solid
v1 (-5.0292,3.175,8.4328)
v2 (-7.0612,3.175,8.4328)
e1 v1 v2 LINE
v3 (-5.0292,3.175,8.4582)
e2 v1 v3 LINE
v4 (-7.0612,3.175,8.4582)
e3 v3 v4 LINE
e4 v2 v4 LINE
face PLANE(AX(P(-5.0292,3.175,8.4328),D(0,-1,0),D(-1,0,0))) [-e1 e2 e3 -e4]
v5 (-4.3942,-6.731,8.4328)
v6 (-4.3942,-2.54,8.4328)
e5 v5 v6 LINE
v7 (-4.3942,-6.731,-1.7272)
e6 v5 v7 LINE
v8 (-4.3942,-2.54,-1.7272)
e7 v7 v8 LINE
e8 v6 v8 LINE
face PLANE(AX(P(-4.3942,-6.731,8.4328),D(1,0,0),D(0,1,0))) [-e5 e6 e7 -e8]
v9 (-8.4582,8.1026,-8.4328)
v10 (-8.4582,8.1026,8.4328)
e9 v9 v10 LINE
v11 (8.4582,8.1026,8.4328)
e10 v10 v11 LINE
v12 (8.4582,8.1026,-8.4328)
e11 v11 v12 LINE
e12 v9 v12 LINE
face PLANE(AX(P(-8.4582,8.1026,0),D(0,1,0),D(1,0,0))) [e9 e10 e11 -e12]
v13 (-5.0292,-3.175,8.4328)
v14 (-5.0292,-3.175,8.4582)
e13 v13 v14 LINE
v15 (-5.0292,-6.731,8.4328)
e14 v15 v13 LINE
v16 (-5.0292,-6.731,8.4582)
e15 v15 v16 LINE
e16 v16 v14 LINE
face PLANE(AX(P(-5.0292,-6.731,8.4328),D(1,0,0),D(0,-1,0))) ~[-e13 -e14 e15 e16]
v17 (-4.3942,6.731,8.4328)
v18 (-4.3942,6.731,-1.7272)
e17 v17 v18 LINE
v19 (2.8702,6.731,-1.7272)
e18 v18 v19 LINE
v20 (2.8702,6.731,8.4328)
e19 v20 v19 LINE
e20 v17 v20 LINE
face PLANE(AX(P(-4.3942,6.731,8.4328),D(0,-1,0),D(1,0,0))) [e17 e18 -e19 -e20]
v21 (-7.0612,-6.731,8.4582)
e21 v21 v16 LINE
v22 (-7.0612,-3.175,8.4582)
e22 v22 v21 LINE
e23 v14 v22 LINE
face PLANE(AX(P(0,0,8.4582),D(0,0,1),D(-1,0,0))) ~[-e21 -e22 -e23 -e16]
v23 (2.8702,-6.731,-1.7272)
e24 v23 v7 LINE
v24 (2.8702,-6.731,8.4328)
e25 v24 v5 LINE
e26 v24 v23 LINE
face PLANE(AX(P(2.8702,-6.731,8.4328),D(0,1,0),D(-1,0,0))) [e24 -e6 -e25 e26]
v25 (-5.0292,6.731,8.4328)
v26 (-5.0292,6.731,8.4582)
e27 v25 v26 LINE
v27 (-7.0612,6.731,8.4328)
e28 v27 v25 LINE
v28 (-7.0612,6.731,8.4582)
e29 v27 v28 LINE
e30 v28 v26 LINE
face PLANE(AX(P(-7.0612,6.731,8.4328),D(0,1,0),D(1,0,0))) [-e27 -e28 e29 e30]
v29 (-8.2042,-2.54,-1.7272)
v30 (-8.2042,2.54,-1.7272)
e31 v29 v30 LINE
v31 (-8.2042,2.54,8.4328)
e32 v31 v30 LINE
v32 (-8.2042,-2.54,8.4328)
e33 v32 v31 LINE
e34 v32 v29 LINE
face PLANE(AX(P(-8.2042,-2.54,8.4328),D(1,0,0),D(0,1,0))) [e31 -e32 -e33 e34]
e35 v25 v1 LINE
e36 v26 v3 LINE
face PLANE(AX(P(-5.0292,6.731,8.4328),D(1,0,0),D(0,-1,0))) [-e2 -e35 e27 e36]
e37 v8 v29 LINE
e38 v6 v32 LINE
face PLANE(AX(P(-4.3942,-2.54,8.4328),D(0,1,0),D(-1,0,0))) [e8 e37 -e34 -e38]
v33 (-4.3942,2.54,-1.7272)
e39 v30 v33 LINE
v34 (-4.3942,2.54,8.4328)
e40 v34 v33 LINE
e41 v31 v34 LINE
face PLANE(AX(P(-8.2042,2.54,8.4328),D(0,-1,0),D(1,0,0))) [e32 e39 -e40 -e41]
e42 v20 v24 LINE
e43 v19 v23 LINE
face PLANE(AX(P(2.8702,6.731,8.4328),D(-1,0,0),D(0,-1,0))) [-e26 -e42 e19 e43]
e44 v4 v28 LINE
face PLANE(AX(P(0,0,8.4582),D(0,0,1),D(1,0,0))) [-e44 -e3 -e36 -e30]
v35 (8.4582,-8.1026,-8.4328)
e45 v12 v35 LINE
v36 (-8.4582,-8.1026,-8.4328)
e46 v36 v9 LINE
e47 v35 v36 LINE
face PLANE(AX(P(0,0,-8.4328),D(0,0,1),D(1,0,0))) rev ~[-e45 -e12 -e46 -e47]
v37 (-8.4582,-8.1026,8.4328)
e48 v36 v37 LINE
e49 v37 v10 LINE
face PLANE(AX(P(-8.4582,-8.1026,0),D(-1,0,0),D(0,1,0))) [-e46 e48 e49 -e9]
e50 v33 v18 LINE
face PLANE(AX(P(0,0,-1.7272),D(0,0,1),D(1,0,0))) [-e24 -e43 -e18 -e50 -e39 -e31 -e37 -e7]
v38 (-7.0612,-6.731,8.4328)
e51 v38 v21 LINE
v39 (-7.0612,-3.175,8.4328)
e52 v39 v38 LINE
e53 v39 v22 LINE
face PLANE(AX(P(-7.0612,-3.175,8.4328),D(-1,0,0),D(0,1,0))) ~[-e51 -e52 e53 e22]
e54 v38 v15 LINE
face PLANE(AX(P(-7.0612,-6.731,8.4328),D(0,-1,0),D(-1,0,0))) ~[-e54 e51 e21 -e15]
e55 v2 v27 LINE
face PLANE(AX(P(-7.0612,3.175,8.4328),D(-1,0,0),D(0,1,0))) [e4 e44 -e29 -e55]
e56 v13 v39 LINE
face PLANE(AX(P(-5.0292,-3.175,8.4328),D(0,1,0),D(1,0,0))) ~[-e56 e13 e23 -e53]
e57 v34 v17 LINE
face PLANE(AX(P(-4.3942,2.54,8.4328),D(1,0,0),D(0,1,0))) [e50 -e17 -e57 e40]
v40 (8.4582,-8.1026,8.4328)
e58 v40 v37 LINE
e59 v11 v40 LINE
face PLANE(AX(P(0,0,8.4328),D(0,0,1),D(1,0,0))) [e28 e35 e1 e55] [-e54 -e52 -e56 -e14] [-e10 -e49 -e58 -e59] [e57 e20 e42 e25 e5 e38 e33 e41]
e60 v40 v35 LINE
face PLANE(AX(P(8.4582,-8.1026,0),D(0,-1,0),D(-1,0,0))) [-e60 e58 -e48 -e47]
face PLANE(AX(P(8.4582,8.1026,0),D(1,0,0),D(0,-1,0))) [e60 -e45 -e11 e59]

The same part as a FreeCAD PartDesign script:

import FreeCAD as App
import Part
import Sketcher

V = App.Vector
Q = App.Units.Quantity

doc = App.newDocument("Part")
body = doc.addObject("PartDesign::Body", "Body")

# Sketch on XY plane
sketch1 = body.newObject("Sketcher::SketchObject", "Sketch")
sketch1.AttachmentSupport = (doc.getObject("XY_Plane"), [""])
sketch1.MapMode = "FlatFace"
sketch1.addGeometry([
    Part.LineSegment(V(8, 8, 0), V(-8, 8, 0)),
    Part.LineSegment(V(-8, 8, 0), V(-8, -8, 0)),
    Part.LineSegment(V(-8, -8, 0), V(8, -8, 0)),
    Part.LineSegment(V(8, -8, 0), V(8, 8, 0)),
], False)
sketch1.addConstraint([
    Sketcher.Constraint("Coincident", 0, 2, 1, 1),
    Sketcher.Constraint("Coincident", 1, 2, 2, 1),
    Sketcher.Constraint("Coincident", 2, 2, 3, 1),
    Sketcher.Constraint("Coincident", 3, 2, 0, 1),
    Sketcher.Constraint("Horizontal", 0),
    Sketcher.Constraint("Vertical", 1),
    Sketcher.Constraint("Horizontal", 2),
    Sketcher.Constraint("Vertical", 3),
    Sketcher.Constraint("Symmetric", 0, 2, 2, 2, -1, 1),
    Sketcher.Constraint("DistanceX", 0, 2, 0, 1, Q("0.666 in")),
    Sketcher.Constraint("DistanceY", 1, 2, 1, 1, Q("0.638 in")),
])
pad1 = body.newObject("PartDesign::Pad", "Pad")
pad1.Profile = sketch1
pad1.Length = Q("0.664 in")
pad1.Midplane = True

# Sketch on XY plane
sketch2 = body.newObject("Sketcher::SketchObject", "Sketch001")
sketch2.AttachmentSupport = (doc.getObject("XY_Plane"), [""])
sketch2.MapMode = "FlatFace"
sketch2.AttachmentOffset = App.Placement(V(0, 0, 0.332 * 25.4), App.Rotation())
sketch2.addGeometry([
    Part.LineSegment(V(-8.2, 2.5, 0), V(-8.2, -2.5, 0)),  # 0
    Part.LineSegment(V(-8.2, -2.5, 0), V(-4.4, -2.5, 0)),  # 1
    Part.LineSegment(V(-4.4, -2.5, 0), V(-4.4, -6.7, 0)),  # 2
    Part.LineSegment(V(-4.4, -6.7, 0), V(2.9, -6.7, 0)),  # 3
    Part.LineSegment(V(2.9, -6.7, 0), V(2.9, 6.7, 0)),  # 4
    Part.LineSegment(V(2.9, 6.7, 0), V(-4.4, 6.7, 0)),  # 5
    Part.LineSegment(V(-4.4, 6.7, 0), V(-4.4, 2.5, 0)),  # 6
    Part.LineSegment(V(-4.4, 2.5, 0), V(-8.2, 2.5, 0)),  # 7
], False)
sketch2.addConstraint([
    Sketcher.Constraint("Coincident", 0, 2, 1, 1),
    Sketcher.Constraint("Coincident", 1, 2, 2, 1),
    Sketcher.Constraint("Coincident", 2, 2, 3, 1),
    Sketcher.Constraint("Coincident", 3, 2, 4, 1),
    Sketcher.Constraint("Coincident", 4, 2, 5, 1),
    Sketcher.Constraint("Coincident", 5, 2, 6, 1),
    Sketcher.Constraint("Coincident", 6, 2, 7, 1),
    Sketcher.Constraint("Coincident", 7, 2, 0, 1),
    Sketcher.Constraint("Vertical", 0),
    Sketcher.Constraint("Horizontal", 1),
    Sketcher.Constraint("Vertical", 2),
    Sketcher.Constraint("Horizontal", 3),
    Sketcher.Constraint("Vertical", 4),
    Sketcher.Constraint("Horizontal", 5),
    Sketcher.Constraint("Vertical", 6),
    Sketcher.Constraint("Horizontal", 7),
    Sketcher.Constraint("Symmetric", 2, 2, 5, 2, -1),
    Sketcher.Constraint("Equal", 2, 6),
    Sketcher.Constraint("DistanceY", 0, 2, 0, 1, Q("0.2 in")),
    Sketcher.Constraint("DistanceX", 1, 1, 1, 2, Q("0.15 in")),
    Sketcher.Constraint("DistanceY", 4, 1, 4, 2, Q("0.53 in")),
    Sketcher.Constraint("DistanceX", 3, 1, 3, 2, Q("0.286 in")),
    Sketcher.Constraint("DistanceX", 0, 2, -1, 1, Q("0.323 in")),
])
pocket1 = body.newObject("PartDesign::Pocket", "Pocket")
pocket1.Profile = sketch2
pocket1.Length = Q("0.4 in")

# Sketch on XY plane
sketch3 = body.newObject("Sketcher::SketchObject", "Sketch002")
sketch3.AttachmentSupport = (doc.getObject("XY_Plane"), [""])
sketch3.MapMode = "FlatFace"
sketch3.AttachmentOffset = App.Placement(V(0, 0, 0.332 * 25.4), App.Rotation())
sketch3.addGeometry([
    Part.LineSegment(V(-5, 6.7, 0), V(-7.1, 6.7, 0)),
    Part.LineSegment(V(-7.1, 6.7, 0), V(-7.1, 3.2, 0)),
    Part.LineSegment(V(-7.1, 3.2, 0), V(-5, 3.2, 0)),
    Part.LineSegment(V(-5, 3.2, 0), V(-5, 6.7, 0)),
], False)
sketch3.addConstraint([
    Sketcher.Constraint("Coincident", 0, 2, 1, 1),
    Sketcher.Constraint("Coincident", 1, 2, 2, 1),
    Sketcher.Constraint("Coincident", 2, 2, 3, 1),
    Sketcher.Constraint("Coincident", 3, 2, 0, 1),
    Sketcher.Constraint("Horizontal", 0),
    Sketcher.Constraint("Vertical", 1),
    Sketcher.Constraint("Horizontal", 2),
    Sketcher.Constraint("Vertical", 3),
    Sketcher.Constraint("DistanceX", 0, 2, 0, 1, Q("0.08 in")),
    Sketcher.Constraint("DistanceY", 1, 2, 1, 1, Q("0.14 in")),
    Sketcher.Constraint("DistanceX", 0, 2, -1, 1, Q("0.278 in")),
    Sketcher.Constraint("DistanceY", -1, 1, 0, 2, Q("0.265 in")),
])
pad2 = body.newObject("PartDesign::Pad", "Pad001")
pad2.Profile = sketch3
pad2.Length = Q("0.001 in")
doc.recompute()

mirrored = body.newObject("PartDesign::Mirrored", "Mirrored")
mirrored.Originals = [pad2]
mirrored.MirrorPlane = (doc.getObject("XZ_Plane"), [""])
body.Tip = mirrored

doc.recompute()
